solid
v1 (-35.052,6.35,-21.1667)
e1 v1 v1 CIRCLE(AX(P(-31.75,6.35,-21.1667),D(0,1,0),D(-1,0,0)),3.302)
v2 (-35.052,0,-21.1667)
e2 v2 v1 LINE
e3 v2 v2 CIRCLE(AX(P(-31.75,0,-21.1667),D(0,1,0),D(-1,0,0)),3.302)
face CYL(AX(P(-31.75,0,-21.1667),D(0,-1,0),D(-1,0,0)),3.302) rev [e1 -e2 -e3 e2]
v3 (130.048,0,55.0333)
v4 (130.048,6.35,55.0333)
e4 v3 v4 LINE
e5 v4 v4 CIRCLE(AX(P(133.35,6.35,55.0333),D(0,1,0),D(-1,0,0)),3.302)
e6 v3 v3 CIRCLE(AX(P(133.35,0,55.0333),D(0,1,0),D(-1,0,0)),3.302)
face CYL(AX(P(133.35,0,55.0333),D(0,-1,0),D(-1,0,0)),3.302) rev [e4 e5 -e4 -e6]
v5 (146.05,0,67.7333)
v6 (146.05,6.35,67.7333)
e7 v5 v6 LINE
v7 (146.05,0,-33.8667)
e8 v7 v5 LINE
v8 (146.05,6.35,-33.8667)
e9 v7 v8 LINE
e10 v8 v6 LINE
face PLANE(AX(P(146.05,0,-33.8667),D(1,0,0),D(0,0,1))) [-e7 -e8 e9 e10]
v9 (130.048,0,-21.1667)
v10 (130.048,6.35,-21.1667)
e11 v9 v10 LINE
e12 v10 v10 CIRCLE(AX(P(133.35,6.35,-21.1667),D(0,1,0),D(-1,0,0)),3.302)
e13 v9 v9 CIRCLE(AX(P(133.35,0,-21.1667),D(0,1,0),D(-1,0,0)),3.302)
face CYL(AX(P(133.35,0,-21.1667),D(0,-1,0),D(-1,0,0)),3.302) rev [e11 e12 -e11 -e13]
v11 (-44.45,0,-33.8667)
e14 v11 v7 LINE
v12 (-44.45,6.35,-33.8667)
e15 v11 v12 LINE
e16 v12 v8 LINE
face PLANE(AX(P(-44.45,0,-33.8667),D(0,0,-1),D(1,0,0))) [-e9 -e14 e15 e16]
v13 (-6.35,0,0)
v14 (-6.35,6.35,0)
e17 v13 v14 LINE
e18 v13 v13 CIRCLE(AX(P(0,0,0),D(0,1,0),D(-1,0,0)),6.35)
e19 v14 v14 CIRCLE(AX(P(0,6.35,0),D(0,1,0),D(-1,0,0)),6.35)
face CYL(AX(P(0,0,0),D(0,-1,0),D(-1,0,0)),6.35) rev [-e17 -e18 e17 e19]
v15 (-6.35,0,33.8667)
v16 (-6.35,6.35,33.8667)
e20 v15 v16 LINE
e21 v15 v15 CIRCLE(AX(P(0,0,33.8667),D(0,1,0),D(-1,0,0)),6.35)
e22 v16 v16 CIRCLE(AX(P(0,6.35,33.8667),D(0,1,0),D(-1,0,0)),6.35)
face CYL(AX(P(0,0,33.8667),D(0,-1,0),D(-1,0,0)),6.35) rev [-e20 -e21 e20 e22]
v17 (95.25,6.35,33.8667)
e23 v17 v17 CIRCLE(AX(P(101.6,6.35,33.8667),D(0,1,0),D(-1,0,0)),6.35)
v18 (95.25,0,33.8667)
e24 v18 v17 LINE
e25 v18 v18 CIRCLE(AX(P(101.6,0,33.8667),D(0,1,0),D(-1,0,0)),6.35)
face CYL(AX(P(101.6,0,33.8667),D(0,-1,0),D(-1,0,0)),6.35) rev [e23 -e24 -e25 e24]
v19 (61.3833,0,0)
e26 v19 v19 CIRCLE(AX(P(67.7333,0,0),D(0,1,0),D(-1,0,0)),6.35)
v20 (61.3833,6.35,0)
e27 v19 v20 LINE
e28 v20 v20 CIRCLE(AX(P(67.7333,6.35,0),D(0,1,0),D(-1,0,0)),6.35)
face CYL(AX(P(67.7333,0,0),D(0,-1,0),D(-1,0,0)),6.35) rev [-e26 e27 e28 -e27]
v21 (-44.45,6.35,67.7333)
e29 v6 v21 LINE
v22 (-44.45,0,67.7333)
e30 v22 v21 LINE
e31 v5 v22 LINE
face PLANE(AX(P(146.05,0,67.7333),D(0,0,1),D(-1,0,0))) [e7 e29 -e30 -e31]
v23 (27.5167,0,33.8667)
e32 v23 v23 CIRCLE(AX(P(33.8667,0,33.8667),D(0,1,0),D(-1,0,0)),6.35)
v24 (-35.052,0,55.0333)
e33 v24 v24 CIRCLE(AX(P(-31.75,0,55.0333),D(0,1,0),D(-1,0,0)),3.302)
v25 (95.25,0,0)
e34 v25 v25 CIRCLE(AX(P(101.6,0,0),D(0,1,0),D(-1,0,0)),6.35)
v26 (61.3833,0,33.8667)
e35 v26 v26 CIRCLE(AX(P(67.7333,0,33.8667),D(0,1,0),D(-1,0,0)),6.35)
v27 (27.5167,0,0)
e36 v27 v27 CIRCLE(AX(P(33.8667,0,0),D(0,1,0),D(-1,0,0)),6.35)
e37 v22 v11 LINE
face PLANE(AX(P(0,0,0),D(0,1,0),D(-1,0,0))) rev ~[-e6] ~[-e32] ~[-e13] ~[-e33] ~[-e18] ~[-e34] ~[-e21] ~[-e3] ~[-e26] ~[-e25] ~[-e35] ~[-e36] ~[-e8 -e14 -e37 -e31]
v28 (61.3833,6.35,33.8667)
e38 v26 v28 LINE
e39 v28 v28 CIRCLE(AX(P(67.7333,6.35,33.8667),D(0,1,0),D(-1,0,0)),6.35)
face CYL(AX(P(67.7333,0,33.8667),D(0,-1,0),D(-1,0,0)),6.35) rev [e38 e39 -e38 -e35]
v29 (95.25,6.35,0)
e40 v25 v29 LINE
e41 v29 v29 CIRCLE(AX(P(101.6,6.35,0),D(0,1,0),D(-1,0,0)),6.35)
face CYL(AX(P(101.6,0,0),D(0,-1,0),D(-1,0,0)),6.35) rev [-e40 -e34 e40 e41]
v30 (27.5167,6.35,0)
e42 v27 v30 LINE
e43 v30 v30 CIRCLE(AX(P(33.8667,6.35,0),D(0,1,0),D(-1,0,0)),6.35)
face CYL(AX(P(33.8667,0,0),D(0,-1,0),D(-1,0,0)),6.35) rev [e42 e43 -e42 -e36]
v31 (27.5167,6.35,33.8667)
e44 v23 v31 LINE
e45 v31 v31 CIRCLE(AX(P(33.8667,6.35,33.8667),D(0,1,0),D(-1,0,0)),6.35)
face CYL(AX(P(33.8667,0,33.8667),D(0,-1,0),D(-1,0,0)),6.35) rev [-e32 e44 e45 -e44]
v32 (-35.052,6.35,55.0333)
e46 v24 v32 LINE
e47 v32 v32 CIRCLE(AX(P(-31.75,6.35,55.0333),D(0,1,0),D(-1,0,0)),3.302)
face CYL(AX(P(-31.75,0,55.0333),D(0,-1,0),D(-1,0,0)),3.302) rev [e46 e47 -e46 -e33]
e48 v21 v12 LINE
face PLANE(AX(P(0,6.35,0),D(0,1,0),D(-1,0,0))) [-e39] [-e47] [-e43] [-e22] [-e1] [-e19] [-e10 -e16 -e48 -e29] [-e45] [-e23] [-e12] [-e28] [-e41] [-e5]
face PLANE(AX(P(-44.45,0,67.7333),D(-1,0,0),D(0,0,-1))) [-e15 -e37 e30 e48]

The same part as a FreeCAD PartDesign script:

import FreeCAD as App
import Part
import Sketcher
from FreeCAD import Vector
Q = App.Units.Quantity

doc = App.newDocument("Part")
params = doc.addObject("Spreadsheet::Sheet", "Params")
for row, (alias, value) in enumerate([
    ("sketch1_diameter", "0.5 in"),
    ("sketch1_diameter2", "0.26 in"),
    ("sketch1_height", "4 in"),
    ("sketch1_width", "7.5 in"),
    ("pad1_length", "0.25 in"),
], start=1):
    params.set(f"A{row}", alias)
    params.set(f"B{row}", "=" + value)
    params.setAlias(f"B{row}", alias)

body = doc.addObject("PartDesign::Body", "Body")

# Sketch on XZ plane
sketch1 = body.newObject("Sketcher::SketchObject", "Sketch")
sketch1.AttachmentSupport = (doc.getObject("XZ_Plane"), [""])
sketch1.MapMode = "FlatFace"
sketch1.addGeometry(Part.LineSegment(Vector(146.05, -33.8667, 0), Vector(-44.45, -33.8667, 0)), False)
sketch1.addGeometry(Part.LineSegment(Vector(-44.45, -33.8667, 0), Vector(-44.45, 67.7333, 0)), False)
sketch1.addGeometry(Part.LineSegment(Vector(-44.45, 67.7333, 0), Vector(146.05, 67.7333, 0)), False)
sketch1.addGeometry(Part.LineSegment(Vector(146.05, 67.7333, 0), Vector(146.05, -33.8667, 0)), False)
sketch1.addGeometry(Part.Circle(Vector(133.35, -21.1667, 0), Vector(0, 0, 1), 3.302), False)
sketch1.addGeometry(Part.Circle(Vector(101.6, 0, 0), Vector(0, 0, 1), 6.35), False)
sketch1.addGeometry(Part.Circle(Vector(67.7333, 0, 0), Vector(0, 0, 1), 6.35), False)
sketch1.addGeometry(Part.Circle(Vector(-31.75, -21.1667, 0), Vector(0, 0, 1), 3.302), False)
sketch1.addGeometry(Part.Circle(Vector(33.8667, 0, 0), Vector(0, 0, 1), 6.35), False)
sketch1.addGeometry(Part.Circle(Vector(0, 0, 0), Vector(0, 0, 1), 6.35), False)
sketch1.addGeometry(Part.Circle(Vector(101.6, 33.8667, 0), Vector(0, 0, 1), 6.35), False)
sketch1.addGeometry(Part.Circle(Vector(67.7333, 33.8667, 0), Vector(0, 0, 1), 6.35), False)
sketch1.addGeometry(Part.Circle(Vector(133.35, 55.0333, 0), Vector(0, 0, 1), 3.302), False)
sketch1.addGeometry(Part.Circle(Vector(33.8667, 33.8667, 0), Vector(0, 0, 1), 6.35), False)
sketch1.addGeometry(Part.Circle(Vector(0, 33.8667, 0), Vector(0, 0, 1), 6.35), False)
sketch1.addGeometry(Part.Circle(Vector(-31.75, 55.0333, 0), Vector(0, 0, 1), 3.302), False)
sketch1.addConstraint(Sketcher.Constraint("Coincident", 0, 2, 1, 1))
sketch1.addConstraint(Sketcher.Constraint("Coincident", 1, 2, 2, 1))
sketch1.addConstraint(Sketcher.Constraint("Coincident", 2, 2, 3, 1))
sketch1.addConstraint(Sketcher.Constraint("Coincident", 3, 2, 0, 1))
sketch1.addConstraint(Sketcher.Constraint("Horizontal", 0))
sketch1.addConstraint(Sketcher.Constraint("Vertical", 1))
sketch1.addConstraint(Sketcher.Constraint("Horizontal", 2))
sketch1.addConstraint(Sketcher.Constraint("Vertical", 3))
sketch1.addConstraint(Sketcher.Constraint("Coincident", 9, 3, -1, 1))
sketch1.addConstraint(Sketcher.Constraint("Equal", 5, 6))
sketch1.addConstraint(Sketcher.Constraint("Equal", 4, 7))
sketch1.addConstraint(Sketcher.Constraint("Equal", 6, 8))
sketch1.addConstraint(Sketcher.Constraint("Equal", 8, 9))
sketch1.addConstraint(Sketcher.Constraint("Equal", 9, 10))
sketch1.addConstraint(Sketcher.Constraint("Equal", 10, 11))
sketch1.addConstraint(Sketcher.Constraint("Equal", 7, 12))
sketch1.addConstraint(Sketcher.Constraint("Equal", 11, 13))
sketch1.addConstraint(Sketcher.Constraint("Equal", 13, 14))
sketch1.addConstraint(Sketcher.Constraint("Equal", 12, 15))
sketch1.addConstraint(Sketcher.Constraint("PointOnObject", 5, 3, -1))
sketch1.addConstraint(Sketcher.Constraint("PointOnObject", 6, 3, -1))
sketch1.addConstraint(Sketcher.Constraint("PointOnObject", 8, 3, -1))
sketch1.addConstraint(Sketcher.Constraint("PointOnObject", 14, 3, -2))
sketch1.addConstraint(Sketcher.Constraint("Horizontal", 4, 3, 7, 3))
sketch1.addConstraint(Sketcher.Constraint("Horizontal", 10, 3, 11, 3))
sketch1.addConstraint(Sketcher.Constraint("Horizontal", 11, 3, 13, 3))
sketch1.addConstraint(Sketcher.Constraint("Horizontal", 13, 3, 14, 3))
sketch1.addConstraint(Sketcher.Constraint("Horizontal", 12, 3, 15, 3))
sketch1.addConstraint(Sketcher.Constraint("Vertical", 5, 3, 10, 3))
sketch1.addConstraint(Sketcher.Constraint("Vertical", 6, 3, 11, 3))
sketch1.addConstraint(Sketcher.Constraint("Vertical", 4, 3, 12, 3))
sketch1.addConstraint(Sketcher.Constraint("Vertical", 8, 3, 13, 3))
sketch1.addConstraint(Sketcher.Constraint("Vertical", 7, 3, 15, 3))
sketch1.addConstraint(Sketcher.Constraint("Diameter", 5, Q("0.5 in")))
sketch1.addConstraint(Sketcher.Constraint("Diameter", 4, Q("0.26 in")))
sketch1.addConstraint(Sketcher.Constraint("DistanceY", 1, 1, 1, 2, Q("4 in")))
sketch1.addConstraint(Sketcher.Constraint("DistanceX", 0, 2, 0, 1, Q("7.5 in")))
sketch1.addConstraint(Sketcher.Constraint("DistanceX", -1, 1, 5, 3, Q("4 in")))
sketch1.addConstraint(Sketcher.Constraint("DistanceX", 0, 2, 7, 3, Q("0.5 in")))
sketch1.addConstraint(Sketcher.Constraint("DistanceY", 0, 2, 7, 3, Q("0.5 in")))
sketch1.addConstraint(Sketcher.Constraint("DistanceY", 15, 3, 1, 2, Q("0.5 in")))
sketch1.addConstraint(Sketcher.Constraint("DistanceX", 12, 3, 2, 2, Q("0.5 in")))
sketch1.addConstraint(Sketcher.Constraint("DistanceX", 0, 2, -1, 1, Q("1.75 in")))
sketch1.addConstraint(Sketcher.Constraint("DistanceX", -1, 1, 8, 3, Q("33.8667 mm")))
sketch1.addConstraint(Sketcher.Constraint("DistanceY", -1, 1, 10, 3, Q("33.8667 mm")))
sketch1.addConstraint(Sketcher.Constraint("DistanceY", 0, 2, -1, 1, Q("33.8667 mm")))
sketch1.addConstraint(Sketcher.Constraint("DistanceX", 6, 3, 5, 3, Q("33.8667 mm")))
sketch1.setExpression("Constraints[33]", "Params.sketch1_diameter")
sketch1.setExpression("Constraints[34]", "Params.sketch1_diameter2")
sketch1.setExpression("Constraints[35]", "Params.sketch1_height")
sketch1.setExpression("Constraints[36]", "Params.sketch1_width")
pad1 = body.newObject("PartDesign::Pad", "Pad")
pad1.Profile = sketch1
pad1.setExpression("Length", "Params.pad1_length")
pad1.Reversed = True

doc.recompute()
